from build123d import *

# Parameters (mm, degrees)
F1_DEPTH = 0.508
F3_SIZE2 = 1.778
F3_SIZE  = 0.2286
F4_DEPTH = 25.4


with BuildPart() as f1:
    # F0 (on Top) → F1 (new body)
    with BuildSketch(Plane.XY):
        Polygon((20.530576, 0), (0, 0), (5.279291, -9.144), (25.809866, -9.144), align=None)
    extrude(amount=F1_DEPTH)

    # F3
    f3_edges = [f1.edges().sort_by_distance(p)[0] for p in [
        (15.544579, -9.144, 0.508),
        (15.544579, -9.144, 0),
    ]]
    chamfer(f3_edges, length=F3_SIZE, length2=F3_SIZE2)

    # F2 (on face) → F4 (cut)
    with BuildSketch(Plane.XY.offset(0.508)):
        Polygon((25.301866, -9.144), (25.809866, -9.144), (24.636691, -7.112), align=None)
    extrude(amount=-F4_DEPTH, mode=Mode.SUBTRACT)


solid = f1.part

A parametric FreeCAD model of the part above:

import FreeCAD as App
import Part
import Sketcher
from FreeCAD import Vector
Q = App.Units.Quantity


def edges_at(feature, points):
    """Names of the edges that pass closest to the given points."""
    edges = feature.Shape.Edges
    near = lambda p: min(range(len(edges)), key=lambda i: edges[i].distToShape(Part.Vertex(*p))[0])
    return sorted({f"Edge{near(p) + 1}" for p in points})


def add_polygon(sketch, points):
    """Adds a closed chain of lines whose ends are joined by coincident constraints."""
    first, n = sketch.GeometryCount, len(points)
    for a, b in zip(points, points[1:] + points[:1]):
        sketch.addGeometry(Part.LineSegment(App.Vector(*a, 0), App.Vector(*b, 0)), False)
    for i in range(n):
        sketch.addConstraint(Sketcher.Constraint("Coincident", first + i, 2, first + (i + 1) % n, 1))

doc = App.newDocument("Part")
body = doc.addObject("PartDesign::Body", "Body")

# Sketch on XY plane
sketch1 = doc.addObject("Sketcher::SketchObject", "Sketch")
body.addObject(sketch1)
sketch1.AttachmentSupport = (doc.XY_Plane, [""])
sketch1.MapMode = "FlatFace"
add_polygon(sketch1, [(21, 0), (0, 0), (5, -9), (26, -9)])  # lines 0-3
sketch1.addConstraint(Sketcher.Constraint("Horizontal", 0))
sketch1.addConstraint(Sketcher.Constraint("Horizontal", 2))
sketch1.addConstraint(Sketcher.Constraint("Coincident", 0, 2, -1, 1))
sketch1.addConstraint(Sketcher.Constraint("Parallel", 1, 3))
sketch1.addConstraint(Sketcher.Constraint("Angle", 1, Q("-59.999999 deg")))
sketch1.addConstraint(Sketcher.Constraint("DistanceY", 1, 2, -1, 1, Q("0.36 in")))
sketch1.addConstraint(Sketcher.Constraint("DistanceX", 0, 2, 0, 1, 20.530576))
pad1 = doc.addObject("PartDesign::Pad", "Pad")
body.addObject(pad1)
pad1.Profile = sketch1
pad1.Length = Q("0.02 in")
doc.recompute()

chamfer = doc.addObject("PartDesign::Chamfer", "Chamfer")
body.addObject(chamfer)
chamfer.Base = (pad1, edges_at(pad1, [(15.545, -9.144, 0.508), (15.545, -9.144, 0)]))
chamfer.ChamferType = "Two distances"
chamfer.Size = Q("0.009 in")
chamfer.Size2 = Q("0.07 in")

# Sketch on XY plane
sketch2 = doc.addObject("Sketcher::SketchObject", "Sketch001")
body.addObject(sketch2)
sketch2.AttachmentSupport = (doc.XY_Plane, [""])
sketch2.MapMode = "FlatFace"
sketch2.AttachmentOffset = App.Placement(Vector(0, 0, 0.02 * 25.4), App.Rotation())
add_polygon(sketch2, [(25.3, -9.1), (25.8, -9.1), (24.6, -7.1)])  # lines 0-2
sketch2.addConstraint(Sketcher.Constraint("Horizontal", 0))
sketch2.addConstraint(Sketcher.Constraint("Angle", 1, Q("119.999984 deg")))
sketch2.addConstraint(Sketcher.Constraint("DistanceX", 0, 1, 0, 2, Q("0.02 in")))
sketch2.addConstraint(Sketcher.Constraint("DistanceY", 0, 2, -1, 1, Q("0.36 in")))
sketch2.addConstraint(Sketcher.Constraint("DistanceY", 1, 2, -1, 1, Q("0.28 in")))
sketch2.addConstraint(Sketcher.Constraint("DistanceX", -1, 1, 1, 2, 24.636691))
pocket1 = doc.addObject("PartDesign::Pocket", "Pocket")
body.addObject(pocket1)
pocket1.Profile = sketch2
pocket1.Length = Q("1 in")

doc.recompute()
